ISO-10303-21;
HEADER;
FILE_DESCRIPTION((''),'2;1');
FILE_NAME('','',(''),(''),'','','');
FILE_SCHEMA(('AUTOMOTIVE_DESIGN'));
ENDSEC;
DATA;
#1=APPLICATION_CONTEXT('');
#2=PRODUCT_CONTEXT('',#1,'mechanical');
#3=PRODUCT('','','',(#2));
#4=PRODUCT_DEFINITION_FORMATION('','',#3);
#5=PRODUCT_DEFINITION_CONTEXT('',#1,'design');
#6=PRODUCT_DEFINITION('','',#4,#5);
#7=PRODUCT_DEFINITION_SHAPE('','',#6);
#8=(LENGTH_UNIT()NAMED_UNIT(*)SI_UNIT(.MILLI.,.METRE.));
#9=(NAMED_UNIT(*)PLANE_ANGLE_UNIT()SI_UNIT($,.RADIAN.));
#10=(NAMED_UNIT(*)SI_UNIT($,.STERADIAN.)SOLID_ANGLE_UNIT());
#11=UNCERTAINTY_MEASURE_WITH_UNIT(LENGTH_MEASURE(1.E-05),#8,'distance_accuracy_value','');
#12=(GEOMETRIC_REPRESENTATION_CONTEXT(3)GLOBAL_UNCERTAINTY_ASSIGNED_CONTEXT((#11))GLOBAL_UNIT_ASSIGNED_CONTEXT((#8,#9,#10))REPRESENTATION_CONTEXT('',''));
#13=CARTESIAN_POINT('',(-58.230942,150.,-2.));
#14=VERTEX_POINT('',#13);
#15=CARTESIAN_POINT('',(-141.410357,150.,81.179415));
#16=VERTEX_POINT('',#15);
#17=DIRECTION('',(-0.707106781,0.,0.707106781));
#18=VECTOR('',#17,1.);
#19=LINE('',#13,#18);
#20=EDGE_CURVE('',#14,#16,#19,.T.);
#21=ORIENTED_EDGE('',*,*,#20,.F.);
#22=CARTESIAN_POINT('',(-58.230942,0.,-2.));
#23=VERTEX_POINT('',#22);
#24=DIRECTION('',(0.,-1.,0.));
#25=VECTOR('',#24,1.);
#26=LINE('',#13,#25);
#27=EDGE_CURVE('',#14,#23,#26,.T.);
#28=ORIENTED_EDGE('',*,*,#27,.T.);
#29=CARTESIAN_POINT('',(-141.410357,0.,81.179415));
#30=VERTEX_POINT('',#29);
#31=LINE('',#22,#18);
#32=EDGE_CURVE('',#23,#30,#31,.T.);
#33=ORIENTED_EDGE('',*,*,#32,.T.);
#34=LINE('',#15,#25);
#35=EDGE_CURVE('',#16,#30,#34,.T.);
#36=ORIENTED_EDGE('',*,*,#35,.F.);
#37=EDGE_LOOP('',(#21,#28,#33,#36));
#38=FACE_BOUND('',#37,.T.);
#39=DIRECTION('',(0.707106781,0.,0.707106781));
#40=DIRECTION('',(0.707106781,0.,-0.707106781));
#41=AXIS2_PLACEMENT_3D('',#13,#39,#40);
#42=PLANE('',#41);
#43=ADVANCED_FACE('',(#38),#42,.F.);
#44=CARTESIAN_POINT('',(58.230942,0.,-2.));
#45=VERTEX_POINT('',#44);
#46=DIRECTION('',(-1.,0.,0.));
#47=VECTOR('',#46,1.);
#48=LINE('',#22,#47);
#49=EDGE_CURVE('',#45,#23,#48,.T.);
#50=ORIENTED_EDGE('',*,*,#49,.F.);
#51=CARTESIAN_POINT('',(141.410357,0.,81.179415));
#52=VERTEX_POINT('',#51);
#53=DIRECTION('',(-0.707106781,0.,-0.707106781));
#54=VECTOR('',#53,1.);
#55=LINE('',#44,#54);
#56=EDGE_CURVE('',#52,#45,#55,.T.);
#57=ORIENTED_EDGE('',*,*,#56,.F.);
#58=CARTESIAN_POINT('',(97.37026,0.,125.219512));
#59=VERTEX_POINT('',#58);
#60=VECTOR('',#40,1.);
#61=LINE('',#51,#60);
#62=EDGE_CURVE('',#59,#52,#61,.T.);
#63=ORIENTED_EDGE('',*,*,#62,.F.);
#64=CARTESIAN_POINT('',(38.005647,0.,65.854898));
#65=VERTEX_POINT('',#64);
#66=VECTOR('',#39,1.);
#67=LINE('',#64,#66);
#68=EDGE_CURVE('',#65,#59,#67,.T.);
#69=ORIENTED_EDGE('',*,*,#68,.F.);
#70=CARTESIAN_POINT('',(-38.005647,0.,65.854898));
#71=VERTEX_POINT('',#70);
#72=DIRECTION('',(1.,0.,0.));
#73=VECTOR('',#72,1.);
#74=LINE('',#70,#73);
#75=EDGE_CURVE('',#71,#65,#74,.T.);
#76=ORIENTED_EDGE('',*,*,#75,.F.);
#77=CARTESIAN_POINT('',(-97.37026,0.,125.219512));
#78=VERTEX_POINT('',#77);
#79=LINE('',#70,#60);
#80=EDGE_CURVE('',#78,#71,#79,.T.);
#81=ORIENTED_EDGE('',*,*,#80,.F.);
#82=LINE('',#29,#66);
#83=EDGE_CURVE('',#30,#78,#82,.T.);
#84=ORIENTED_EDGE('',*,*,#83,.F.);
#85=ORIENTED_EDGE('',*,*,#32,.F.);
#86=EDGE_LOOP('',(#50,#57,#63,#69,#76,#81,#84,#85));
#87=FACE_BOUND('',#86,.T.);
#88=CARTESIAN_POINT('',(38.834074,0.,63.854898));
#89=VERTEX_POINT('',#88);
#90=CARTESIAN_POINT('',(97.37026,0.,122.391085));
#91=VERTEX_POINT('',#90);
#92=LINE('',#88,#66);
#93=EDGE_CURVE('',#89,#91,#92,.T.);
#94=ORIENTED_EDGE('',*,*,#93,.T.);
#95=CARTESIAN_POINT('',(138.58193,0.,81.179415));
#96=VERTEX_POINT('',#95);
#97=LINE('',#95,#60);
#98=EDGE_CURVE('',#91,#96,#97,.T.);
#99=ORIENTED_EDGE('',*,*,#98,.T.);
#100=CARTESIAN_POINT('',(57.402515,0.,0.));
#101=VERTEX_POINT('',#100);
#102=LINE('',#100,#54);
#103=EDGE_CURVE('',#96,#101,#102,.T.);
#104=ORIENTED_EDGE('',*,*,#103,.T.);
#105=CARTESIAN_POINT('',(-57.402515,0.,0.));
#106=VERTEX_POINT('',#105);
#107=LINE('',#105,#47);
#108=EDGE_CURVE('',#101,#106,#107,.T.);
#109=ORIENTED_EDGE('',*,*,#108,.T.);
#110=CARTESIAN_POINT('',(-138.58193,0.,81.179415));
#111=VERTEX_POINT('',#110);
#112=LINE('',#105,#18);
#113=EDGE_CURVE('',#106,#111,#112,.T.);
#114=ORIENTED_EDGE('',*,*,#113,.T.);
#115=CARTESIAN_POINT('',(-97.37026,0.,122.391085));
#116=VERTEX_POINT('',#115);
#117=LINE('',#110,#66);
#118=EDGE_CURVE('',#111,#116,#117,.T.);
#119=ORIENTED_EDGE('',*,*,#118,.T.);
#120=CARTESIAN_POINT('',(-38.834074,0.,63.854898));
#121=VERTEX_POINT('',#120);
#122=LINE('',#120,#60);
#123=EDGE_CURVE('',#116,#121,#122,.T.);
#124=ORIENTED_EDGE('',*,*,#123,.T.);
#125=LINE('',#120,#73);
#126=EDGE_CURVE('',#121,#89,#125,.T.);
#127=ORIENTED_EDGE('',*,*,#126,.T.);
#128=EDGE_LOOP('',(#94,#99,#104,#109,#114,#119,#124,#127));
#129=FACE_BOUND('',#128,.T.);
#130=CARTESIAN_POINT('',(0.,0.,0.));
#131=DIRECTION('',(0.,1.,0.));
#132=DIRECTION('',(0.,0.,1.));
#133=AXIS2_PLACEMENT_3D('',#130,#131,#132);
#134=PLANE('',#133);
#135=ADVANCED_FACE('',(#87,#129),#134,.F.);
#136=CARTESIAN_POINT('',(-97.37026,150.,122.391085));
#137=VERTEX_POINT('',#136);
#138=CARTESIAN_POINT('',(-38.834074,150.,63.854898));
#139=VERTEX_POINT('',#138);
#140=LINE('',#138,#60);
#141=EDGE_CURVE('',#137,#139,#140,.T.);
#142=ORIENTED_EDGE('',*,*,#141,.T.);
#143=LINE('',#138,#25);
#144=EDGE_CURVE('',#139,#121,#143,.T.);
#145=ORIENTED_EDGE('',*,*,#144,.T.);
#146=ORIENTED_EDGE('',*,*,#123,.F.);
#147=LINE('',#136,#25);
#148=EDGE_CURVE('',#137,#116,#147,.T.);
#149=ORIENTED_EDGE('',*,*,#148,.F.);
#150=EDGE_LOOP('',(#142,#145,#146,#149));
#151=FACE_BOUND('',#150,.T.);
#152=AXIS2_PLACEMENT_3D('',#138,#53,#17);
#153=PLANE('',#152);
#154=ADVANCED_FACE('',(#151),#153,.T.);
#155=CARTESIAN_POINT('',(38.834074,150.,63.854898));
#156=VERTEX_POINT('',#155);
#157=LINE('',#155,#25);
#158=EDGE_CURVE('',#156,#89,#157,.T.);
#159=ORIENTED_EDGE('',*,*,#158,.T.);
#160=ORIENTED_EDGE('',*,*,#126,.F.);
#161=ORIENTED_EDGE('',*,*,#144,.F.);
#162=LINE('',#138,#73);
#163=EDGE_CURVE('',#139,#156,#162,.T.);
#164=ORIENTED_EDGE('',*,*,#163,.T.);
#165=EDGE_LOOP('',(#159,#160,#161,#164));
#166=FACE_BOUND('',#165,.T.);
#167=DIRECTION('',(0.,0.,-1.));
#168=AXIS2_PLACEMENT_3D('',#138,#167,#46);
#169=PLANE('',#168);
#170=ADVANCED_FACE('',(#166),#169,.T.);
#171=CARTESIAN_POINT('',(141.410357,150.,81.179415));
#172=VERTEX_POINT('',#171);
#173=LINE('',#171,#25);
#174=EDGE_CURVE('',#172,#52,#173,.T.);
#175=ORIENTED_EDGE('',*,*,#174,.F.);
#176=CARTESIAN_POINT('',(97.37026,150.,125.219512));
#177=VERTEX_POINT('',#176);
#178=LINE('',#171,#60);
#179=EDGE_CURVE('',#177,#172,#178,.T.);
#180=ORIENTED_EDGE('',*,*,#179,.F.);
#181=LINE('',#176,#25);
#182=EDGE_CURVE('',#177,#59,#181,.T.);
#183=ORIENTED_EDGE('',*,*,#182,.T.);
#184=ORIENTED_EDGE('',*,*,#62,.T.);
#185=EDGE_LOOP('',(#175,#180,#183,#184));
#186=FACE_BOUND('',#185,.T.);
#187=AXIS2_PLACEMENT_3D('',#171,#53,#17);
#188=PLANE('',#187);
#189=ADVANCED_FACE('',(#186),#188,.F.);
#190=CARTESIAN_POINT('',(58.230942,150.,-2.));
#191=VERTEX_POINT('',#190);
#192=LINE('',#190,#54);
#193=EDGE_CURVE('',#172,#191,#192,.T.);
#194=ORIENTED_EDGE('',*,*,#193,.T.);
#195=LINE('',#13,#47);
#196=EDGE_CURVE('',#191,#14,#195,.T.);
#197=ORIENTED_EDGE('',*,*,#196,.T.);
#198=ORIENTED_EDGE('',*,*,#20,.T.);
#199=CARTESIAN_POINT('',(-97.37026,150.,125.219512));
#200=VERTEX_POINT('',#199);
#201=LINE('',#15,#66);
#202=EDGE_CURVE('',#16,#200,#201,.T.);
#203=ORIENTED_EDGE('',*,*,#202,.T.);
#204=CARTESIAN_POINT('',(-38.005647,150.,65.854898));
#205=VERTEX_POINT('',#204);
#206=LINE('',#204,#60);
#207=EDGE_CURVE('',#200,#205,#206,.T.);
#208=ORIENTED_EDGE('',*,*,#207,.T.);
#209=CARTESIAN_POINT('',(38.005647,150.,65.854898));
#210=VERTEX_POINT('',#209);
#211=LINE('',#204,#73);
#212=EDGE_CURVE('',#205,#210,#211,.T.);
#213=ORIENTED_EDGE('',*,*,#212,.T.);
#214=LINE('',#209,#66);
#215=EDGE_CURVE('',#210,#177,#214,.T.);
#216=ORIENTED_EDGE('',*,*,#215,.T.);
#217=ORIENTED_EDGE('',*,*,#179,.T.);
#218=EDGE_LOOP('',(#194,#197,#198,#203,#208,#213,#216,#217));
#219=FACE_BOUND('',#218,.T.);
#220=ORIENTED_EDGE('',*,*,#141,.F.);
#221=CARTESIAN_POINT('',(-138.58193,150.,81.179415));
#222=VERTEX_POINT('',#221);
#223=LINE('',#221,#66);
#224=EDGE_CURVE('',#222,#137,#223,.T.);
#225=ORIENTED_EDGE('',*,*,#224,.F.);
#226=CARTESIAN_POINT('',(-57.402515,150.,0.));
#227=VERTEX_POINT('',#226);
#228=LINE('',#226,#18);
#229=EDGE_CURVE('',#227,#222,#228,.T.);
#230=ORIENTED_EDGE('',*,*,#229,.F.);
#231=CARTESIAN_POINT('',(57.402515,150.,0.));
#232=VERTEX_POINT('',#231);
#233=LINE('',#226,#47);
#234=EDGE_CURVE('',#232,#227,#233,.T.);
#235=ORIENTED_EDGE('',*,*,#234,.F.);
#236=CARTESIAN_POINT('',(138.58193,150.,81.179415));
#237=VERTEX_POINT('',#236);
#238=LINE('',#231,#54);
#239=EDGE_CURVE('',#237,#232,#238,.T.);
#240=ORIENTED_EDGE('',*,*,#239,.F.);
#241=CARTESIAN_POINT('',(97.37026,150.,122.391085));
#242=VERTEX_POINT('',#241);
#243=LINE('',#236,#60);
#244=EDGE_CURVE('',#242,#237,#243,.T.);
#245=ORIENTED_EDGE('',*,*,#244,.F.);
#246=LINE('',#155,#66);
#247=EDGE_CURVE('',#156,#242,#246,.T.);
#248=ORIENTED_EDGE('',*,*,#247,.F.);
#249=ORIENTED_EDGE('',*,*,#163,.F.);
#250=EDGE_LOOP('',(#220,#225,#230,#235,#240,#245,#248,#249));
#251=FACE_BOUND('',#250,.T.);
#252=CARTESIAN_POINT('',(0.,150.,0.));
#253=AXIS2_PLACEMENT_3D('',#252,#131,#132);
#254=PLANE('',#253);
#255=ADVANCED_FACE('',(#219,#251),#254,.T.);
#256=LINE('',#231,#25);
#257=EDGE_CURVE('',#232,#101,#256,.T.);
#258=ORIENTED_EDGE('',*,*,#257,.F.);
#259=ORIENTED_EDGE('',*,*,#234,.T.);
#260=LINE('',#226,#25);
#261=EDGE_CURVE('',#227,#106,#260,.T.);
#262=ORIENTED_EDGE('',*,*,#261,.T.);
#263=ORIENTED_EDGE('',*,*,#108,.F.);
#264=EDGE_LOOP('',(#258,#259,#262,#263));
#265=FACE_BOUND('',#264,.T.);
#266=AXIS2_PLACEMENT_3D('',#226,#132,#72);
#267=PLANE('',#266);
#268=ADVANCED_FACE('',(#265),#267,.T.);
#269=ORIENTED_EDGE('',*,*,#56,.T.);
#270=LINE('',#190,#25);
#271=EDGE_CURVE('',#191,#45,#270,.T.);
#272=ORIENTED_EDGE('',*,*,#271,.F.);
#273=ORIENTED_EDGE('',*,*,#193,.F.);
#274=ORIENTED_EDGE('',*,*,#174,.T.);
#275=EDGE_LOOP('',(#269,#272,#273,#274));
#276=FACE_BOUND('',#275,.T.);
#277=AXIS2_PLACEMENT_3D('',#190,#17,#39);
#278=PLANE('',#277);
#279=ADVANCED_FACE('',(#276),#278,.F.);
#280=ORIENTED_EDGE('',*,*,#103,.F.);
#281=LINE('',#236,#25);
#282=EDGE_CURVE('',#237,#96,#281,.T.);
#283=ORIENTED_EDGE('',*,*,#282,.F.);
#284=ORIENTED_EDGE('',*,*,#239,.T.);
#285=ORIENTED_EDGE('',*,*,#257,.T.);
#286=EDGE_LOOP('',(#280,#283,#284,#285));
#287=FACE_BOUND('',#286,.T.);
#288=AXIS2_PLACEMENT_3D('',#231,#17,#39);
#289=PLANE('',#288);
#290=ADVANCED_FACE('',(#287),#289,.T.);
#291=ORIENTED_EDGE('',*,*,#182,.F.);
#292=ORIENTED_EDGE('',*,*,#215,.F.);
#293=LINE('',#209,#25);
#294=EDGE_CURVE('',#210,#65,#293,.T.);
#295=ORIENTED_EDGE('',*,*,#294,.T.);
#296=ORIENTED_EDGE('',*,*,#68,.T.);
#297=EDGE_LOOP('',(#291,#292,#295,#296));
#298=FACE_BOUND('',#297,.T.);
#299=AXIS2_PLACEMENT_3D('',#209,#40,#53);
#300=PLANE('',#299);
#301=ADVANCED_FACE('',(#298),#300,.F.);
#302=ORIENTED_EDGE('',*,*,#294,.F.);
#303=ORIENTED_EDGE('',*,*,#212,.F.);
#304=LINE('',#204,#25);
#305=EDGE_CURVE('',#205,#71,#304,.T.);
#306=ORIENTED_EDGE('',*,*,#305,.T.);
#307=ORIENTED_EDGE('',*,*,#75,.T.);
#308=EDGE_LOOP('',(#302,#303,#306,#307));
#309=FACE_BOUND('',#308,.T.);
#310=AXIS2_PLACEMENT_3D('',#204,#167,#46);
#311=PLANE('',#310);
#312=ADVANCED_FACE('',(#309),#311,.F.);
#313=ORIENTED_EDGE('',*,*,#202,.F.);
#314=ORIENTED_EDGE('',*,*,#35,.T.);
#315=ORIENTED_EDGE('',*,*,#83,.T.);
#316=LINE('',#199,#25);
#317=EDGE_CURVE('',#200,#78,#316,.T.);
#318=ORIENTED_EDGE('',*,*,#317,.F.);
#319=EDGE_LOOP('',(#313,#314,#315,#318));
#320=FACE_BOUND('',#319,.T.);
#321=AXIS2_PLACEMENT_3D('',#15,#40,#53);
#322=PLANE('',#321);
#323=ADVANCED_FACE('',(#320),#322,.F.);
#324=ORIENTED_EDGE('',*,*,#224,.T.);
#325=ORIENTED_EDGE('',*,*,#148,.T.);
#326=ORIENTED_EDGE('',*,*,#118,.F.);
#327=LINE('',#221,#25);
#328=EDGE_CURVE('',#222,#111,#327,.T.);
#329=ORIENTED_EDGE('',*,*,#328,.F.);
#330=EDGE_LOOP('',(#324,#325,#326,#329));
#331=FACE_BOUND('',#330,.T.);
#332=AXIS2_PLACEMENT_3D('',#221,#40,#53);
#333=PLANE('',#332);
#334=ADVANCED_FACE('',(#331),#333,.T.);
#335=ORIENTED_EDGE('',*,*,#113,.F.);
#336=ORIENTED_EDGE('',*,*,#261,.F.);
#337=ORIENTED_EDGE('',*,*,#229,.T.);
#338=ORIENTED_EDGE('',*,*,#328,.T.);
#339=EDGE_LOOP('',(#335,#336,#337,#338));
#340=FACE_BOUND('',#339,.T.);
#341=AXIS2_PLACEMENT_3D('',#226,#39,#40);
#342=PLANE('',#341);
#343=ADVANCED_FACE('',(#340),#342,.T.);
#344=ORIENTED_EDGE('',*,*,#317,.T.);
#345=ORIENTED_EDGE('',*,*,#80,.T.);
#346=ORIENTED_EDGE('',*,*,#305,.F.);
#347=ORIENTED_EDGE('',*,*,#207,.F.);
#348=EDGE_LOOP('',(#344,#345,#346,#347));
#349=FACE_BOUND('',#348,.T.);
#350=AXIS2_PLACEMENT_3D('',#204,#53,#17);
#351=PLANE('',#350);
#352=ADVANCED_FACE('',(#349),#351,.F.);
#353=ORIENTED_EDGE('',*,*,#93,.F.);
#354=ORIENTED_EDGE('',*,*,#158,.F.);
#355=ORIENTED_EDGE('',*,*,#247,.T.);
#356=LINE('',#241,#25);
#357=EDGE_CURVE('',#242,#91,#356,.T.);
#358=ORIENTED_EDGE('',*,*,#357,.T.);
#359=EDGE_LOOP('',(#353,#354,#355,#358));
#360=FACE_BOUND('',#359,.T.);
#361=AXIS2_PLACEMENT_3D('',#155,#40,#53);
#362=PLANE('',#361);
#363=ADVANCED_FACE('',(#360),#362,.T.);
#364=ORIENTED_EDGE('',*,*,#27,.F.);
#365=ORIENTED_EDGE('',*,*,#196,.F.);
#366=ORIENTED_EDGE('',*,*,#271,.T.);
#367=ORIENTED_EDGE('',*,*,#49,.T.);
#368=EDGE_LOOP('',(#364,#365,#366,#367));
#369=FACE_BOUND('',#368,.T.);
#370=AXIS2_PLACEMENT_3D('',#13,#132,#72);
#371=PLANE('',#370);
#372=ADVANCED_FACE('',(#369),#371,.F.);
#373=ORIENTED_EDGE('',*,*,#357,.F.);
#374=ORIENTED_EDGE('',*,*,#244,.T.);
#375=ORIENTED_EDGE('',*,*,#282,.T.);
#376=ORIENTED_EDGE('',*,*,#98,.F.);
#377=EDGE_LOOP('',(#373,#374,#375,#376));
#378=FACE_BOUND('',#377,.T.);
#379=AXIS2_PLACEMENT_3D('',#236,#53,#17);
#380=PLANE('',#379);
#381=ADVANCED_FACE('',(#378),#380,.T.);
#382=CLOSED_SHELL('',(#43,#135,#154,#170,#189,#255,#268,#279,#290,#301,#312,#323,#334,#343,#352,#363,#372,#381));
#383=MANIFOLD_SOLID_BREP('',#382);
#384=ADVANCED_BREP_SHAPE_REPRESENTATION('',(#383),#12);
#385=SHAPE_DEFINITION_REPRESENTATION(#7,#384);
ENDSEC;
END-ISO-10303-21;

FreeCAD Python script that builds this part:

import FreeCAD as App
import Part
import Sketcher
from FreeCAD import Vector


def add_polygon(sketch, points):
    """Adds a closed chain of lines whose ends are joined by coincident constraints."""
    first, n = sketch.GeometryCount, len(points)
    for a, b in zip(points, points[1:] + points[:1]):
        sketch.addGeometry(Part.LineSegment(App.Vector(*a, 0), App.Vector(*b, 0)), False)
    for i in range(n):
        sketch.addConstraint(Sketcher.Constraint("Coincident", first + i, 2, first + (i + 1) % n, 1))

doc = App.newDocument("Part")
body = doc.addObject("PartDesign::Body", "Body")

# Sketch on XZ plane
sketch1 = doc.addObject("Sketcher::SketchObject", "Sketch")
body.addObject(sketch1)
sketch1.AttachmentSupport = (doc.XZ_Plane, [""])
sketch1.MapMode = "FlatFace"
add_polygon(sketch1, [(-141.410357, 81.179415), (-97.37026, 125.219512), (-38.005647, 65.854898), (38.005647, 65.854898), (97.37026, 125.219512), (141.410357, 81.179415), (58.230942, -2), (-58.230942, -2)])  # lines 0-7
add_polygon(sketch1, [(-138.58193, 81.179415), (-57.402515, 0), (57.402515, 0), (138.58193, 81.179415), (97.37026, 122.391085), (38.834074, 63.854898), (-38.834074, 63.854898), (-97.37026, 122.391085)])  # lines 8-15
sketch1.addConstraint([
    Sketcher.Constraint("Horizontal", 2),
    Sketcher.Constraint("Horizontal", 6),
    Sketcher.Constraint("Horizontal", 9),
    Sketcher.Constraint("Horizontal", 13),
    Sketcher.Constraint("Symmetric", 8, 2, 9, 2, -1, 1),
    Sketcher.Constraint("Symmetric", 0, 2, 3, 2, -2),
    Sketcher.Constraint("Symmetric", 4, 2, 7, 2, -2),
    Sketcher.Constraint("Symmetric", 11, 2, 14, 2, -2),
    Sketcher.Constraint("Symmetric", 10, 2, 15, 2, -2),
    Sketcher.Constraint("Perpendicular", 0, 1),
    Sketcher.Constraint("Perpendicular", 1, 3),
    Sketcher.Constraint("Perpendicular", 3, 4),
    Sketcher.Constraint("Perpendicular", 4, 5),
    Sketcher.Constraint("Perpendicular", 5, 7),
    Sketcher.Constraint("Parallel", 7, 8),
    Sketcher.Constraint("Perpendicular", 10, 11),
    Sketcher.Constraint("Perpendicular", 11, 12),
    Sketcher.Constraint("Perpendicular", 12, 14),
    Sketcher.Constraint("Horizontal", 7, 2, 10, 2),
    Sketcher.Constraint("Vertical", 3, 2, 11, 2),
    Sketcher.Constraint("DistanceY", 5, 2, -1, 1, 2.0),
    Sketcher.Constraint("DistanceY", 12, 2, 2, 2, 2.0),
    Sketcher.Constraint("DistanceX", 9, 1, 9, 2, 114.80503),
    Sketcher.Constraint("DistanceX", 13, 2, 13, 1, 77.668148),
    Sketcher.Constraint("DistanceY", -1, 1, 1, 2, 65.854898),
    Sketcher.Constraint("DistanceX", 7, 2, 5, 2, 199.641299),
    Sketcher.Constraint("Distance", 1, 83.954241),
])
pad1 = doc.addObject("PartDesign::Pad", "Pad")
body.addObject(pad1)
pad1.Profile = sketch1
pad1.Length = 150
pad1.Reversed = True

doc.recompute()
